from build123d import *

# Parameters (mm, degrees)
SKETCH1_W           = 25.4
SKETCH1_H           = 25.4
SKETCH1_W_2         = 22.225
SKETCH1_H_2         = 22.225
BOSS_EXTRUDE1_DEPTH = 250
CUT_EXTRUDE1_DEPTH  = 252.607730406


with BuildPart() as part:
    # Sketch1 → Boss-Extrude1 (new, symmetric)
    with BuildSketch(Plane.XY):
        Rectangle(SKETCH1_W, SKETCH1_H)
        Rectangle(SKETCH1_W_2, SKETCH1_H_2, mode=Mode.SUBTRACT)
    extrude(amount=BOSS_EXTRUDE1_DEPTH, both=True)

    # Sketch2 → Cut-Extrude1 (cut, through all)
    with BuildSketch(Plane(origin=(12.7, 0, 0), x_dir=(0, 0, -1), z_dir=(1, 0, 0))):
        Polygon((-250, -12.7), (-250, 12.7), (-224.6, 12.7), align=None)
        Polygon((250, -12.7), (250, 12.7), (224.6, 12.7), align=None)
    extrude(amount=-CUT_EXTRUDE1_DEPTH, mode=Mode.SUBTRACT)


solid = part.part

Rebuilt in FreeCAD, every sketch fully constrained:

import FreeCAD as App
import Part
import Sketcher

V = App.Vector
Q = App.Units.Quantity


def add_polygon(sketch, points):
    """Adds a closed chain of lines whose ends are joined by coincident constraints."""
    first, n = sketch.GeometryCount, len(points)
    for a, b in zip(points, points[1:] + points[:1]):
        sketch.addGeometry(Part.LineSegment(App.Vector(*a, 0), App.Vector(*b, 0)), False)
    for i in range(n):
        sketch.addConstraint(Sketcher.Constraint("Coincident", first + i, 2, first + (i + 1) % n, 1))

doc = App.newDocument("Part")
params = doc.addObject("Spreadsheet::Sheet", "Params")
for row, (alias, value) in enumerate([
    ("sketch1_width", "1 in"),
    ("sketch1_width2", "0.875 in"),
    ("pad1_length", "500 mm"),
    ("sketch2_width", "1 in"),
], start=1):
    params.set(f"A{row}", alias)
    params.set(f"B{row}", "=" + value)
    params.setAlias(f"B{row}", alias)

body = doc.addObject("PartDesign::Body", "Body")

# Sketch on XY plane
sketch1 = body.newObject("Sketcher::SketchObject", "Sketch")
sketch1.AttachmentSupport = (doc.getObject("XY_Plane"), [""])
sketch1.MapMode = "FlatFace"
add_polygon(sketch1, [(-13, 13), (-13, -13), (13, -13), (13, 13)])  # lines 0-3
add_polygon(sketch1, [(11, -11), (-11, -11), (-11, 11), (11, 11)])  # lines 4-7
sketch1.addConstraint(Sketcher.Constraint("Vertical", 0))
sketch1.addConstraint(Sketcher.Constraint("Horizontal", 1))
sketch1.addConstraint(Sketcher.Constraint("Vertical", 2))
sketch1.addConstraint(Sketcher.Constraint("Horizontal", 3))
sketch1.addConstraint(Sketcher.Constraint("Horizontal", 4))
sketch1.addConstraint(Sketcher.Constraint("Vertical", 5))
sketch1.addConstraint(Sketcher.Constraint("Horizontal", 6))
sketch1.addConstraint(Sketcher.Constraint("Vertical", 7))
sketch1.addConstraint(Sketcher.Constraint("Symmetric", 0, 2, 2, 2, -1, 1))
sketch1.addConstraint(Sketcher.Constraint("Symmetric", 4, 2, 6, 2, -1, 1))
sketch1.addConstraint(Sketcher.Constraint("Equal", 3, 0))
sketch1.addConstraint(Sketcher.Constraint("Equal", 6, 5))
sketch1.addConstraint(Sketcher.Constraint("DistanceX", 1, 1, 1, 2, Q("1 in")))
sketch1.addConstraint(Sketcher.Constraint("DistanceX", 4, 2, 4, 1, Q("0.875 in")))
sketch1.setExpression("Constraints[20]", "Params.sketch1_width")
sketch1.setExpression("Constraints[21]", "Params.sketch1_width2")
pad1 = body.newObject("PartDesign::Pad", "Pad")
pad1.Profile = sketch1
pad1.setExpression("Length", "Params.pad1_length")
pad1.Midplane = True

# Sketch on YZ plane
sketch2 = body.newObject("Sketcher::SketchObject", "Sketch001")
sketch2.AttachmentSupport = (doc.getObject("YZ_Plane"), [""])
sketch2.MapMode = "FlatFace"
sketch2.AttachmentOffset = App.Placement(V(0, 0, 0.5 * 25.4), App.Rotation())
add_polygon(sketch2, [(13, 250), (-13, 250), (13, 225)])  # lines 0-2
add_polygon(sketch2, [(-13, -250), (13, -250), (13, -225)])  # lines 3-5
sketch2.addConstraint(Sketcher.Constraint("Horizontal", 0))
sketch2.addConstraint(Sketcher.Constraint("Vertical", 2))
sketch2.addConstraint(Sketcher.Constraint("Horizontal", 3))
sketch2.addConstraint(Sketcher.Constraint("Vertical", 4))
sketch2.addConstraint(Sketcher.Constraint("Symmetric", 0, 2, 3, 2, -1, 1))
sketch2.addConstraint(Sketcher.Constraint("Symmetric", 1, 2, 4, 2, -1))
sketch2.addConstraint(Sketcher.Constraint("Perpendicular", 1, 5))
sketch2.addConstraint(Sketcher.Constraint("Vertical", 0, 2, 5, 2))
sketch2.addConstraint(Sketcher.Constraint("DistanceX", 0, 2, 0, 1, Q("1 in")))
sketch2.addConstraint(Sketcher.Constraint("DistanceY", -1, 1, 0, 2, 250.0))
sketch2.setExpression("Constraints[14]", "Params.sketch2_width")
pocket1 = body.newObject("PartDesign::Pocket", "Pocket")
pocket1.Profile = sketch2
pocket1.Type = "ThroughAll"

doc.recompute()
